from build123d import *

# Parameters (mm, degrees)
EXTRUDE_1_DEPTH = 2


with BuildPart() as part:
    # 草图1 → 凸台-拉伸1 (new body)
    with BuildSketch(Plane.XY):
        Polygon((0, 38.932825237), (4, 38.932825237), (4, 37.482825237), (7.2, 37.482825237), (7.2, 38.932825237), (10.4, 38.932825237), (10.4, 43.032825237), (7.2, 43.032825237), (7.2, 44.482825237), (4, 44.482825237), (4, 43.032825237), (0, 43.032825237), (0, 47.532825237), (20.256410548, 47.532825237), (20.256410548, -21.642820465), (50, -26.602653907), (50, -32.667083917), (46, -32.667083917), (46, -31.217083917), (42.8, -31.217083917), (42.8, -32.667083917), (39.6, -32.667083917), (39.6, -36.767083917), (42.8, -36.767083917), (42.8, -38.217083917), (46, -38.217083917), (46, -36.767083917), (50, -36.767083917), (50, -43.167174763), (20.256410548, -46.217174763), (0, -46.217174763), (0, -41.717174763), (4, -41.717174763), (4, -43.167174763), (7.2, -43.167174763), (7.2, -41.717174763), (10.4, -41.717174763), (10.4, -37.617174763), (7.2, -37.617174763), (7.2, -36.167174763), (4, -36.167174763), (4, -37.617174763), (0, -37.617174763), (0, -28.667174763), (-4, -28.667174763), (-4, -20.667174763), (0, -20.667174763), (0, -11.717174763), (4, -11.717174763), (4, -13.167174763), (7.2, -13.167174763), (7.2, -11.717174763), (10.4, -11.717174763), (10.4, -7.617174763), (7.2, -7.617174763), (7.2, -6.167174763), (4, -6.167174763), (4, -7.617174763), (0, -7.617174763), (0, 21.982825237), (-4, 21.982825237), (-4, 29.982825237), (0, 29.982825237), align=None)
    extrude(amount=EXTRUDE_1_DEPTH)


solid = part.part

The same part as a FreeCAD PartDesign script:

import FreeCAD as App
import Part
import Sketcher
from FreeCAD import Vector
Q = App.Units.Quantity

doc = App.newDocument("Part")
body = doc.addObject("PartDesign::Body", "Body")

# Sketch on XY plane
sketch1 = body.newObject("Sketcher::SketchObject", "Sketch")
sketch1.AttachmentSupport = (doc.getObject("XY_Plane"), [""])
sketch1.MapMode = "FlatFace"
sketch1.addGeometry([
    Part.LineSegment(Vector(4, 38.932825, 0), Vector(0, 38.932825, 0)),  # 0
    Part.LineSegment(Vector(0, 38.932825, 0), Vector(0, 29.982825, 0)),  # 1
    Part.LineSegment(Vector(0, 29.982825, 0), Vector(-4, 29.982825, 0)),  # 2
    Part.LineSegment(Vector(-4, 29.982825, 0), Vector(-4, 21.982825, 0)),  # 3
    Part.LineSegment(Vector(-4, 21.982825, 0), Vector(0, 21.982825, 0)),  # 4
    Part.LineSegment(Vector(0, 21.982825, 0), Vector(0, -7.617175, 0)),  # 5
    Part.LineSegment(Vector(0, -7.617175, 0), Vector(4, -7.617175, 0)),  # 6
    Part.LineSegment(Vector(4, -7.617175, 0), Vector(4, -6.167175, 0)),  # 7
    Part.LineSegment(Vector(4, -6.167175, 0), Vector(7.2, -6.167175, 0)),  # 8
    Part.LineSegment(Vector(7.2, -6.167175, 0), Vector(7.2, -7.617175, 0)),  # 9
    Part.LineSegment(Vector(7.2, -7.617175, 0), Vector(10.4, -7.617175, 0)),  # 10
    Part.LineSegment(Vector(10.4, -7.617175, 0), Vector(10.4, -11.717175, 0)),  # 11
    Part.LineSegment(Vector(10.4, -11.717175, 0), Vector(7.2, -11.717175, 0)),  # 12
    Part.LineSegment(Vector(7.2, -11.717175, 0), Vector(7.2, -13.167175, 0)),  # 13
    Part.LineSegment(Vector(7.2, -13.167175, 0), Vector(4, -13.167175, 0)),  # 14
    Part.LineSegment(Vector(4, -13.167175, 0), Vector(4, -11.717175, 0)),  # 15
    Part.LineSegment(Vector(4, -11.717175, 0), Vector(0, -11.717175, 0)),  # 16
    Part.LineSegment(Vector(0, -11.717175, 0), Vector(0, -20.667175, 0)),  # 17
    Part.LineSegment(Vector(0, -20.667175, 0), Vector(-4, -20.667175, 0)),  # 18
    Part.LineSegment(Vector(-4, -20.667175, 0), Vector(-4, -28.667175, 0)),  # 19
    Part.LineSegment(Vector(-4, -28.667175, 0), Vector(0, -28.667175, 0)),  # 20
    Part.LineSegment(Vector(0, -28.667175, 0), Vector(0, -37.617175, 0)),  # 21
    Part.LineSegment(Vector(0, -37.617175, 0), Vector(4, -37.617175, 0)),  # 22
    Part.LineSegment(Vector(4, -37.617175, 0), Vector(4, -36.167175, 0)),  # 23
    Part.LineSegment(Vector(4, -36.167175, 0), Vector(7.2, -36.167175, 0)),  # 24
    Part.LineSegment(Vector(7.2, -36.167175, 0), Vector(7.2, -37.617175, 0)),  # 25
    Part.LineSegment(Vector(7.2, -37.617175, 0), Vector(10.4, -37.617175, 0)),  # 26
    Part.LineSegment(Vector(10.4, -37.617175, 0), Vector(10.4, -41.717175, 0)),  # 27
    Part.LineSegment(Vector(10.4, -41.717175, 0), Vector(7.2, -41.717175, 0)),  # 28
    Part.LineSegment(Vector(7.2, -41.717175, 0), Vector(7.2, -43.167175, 0)),  # 29
    Part.LineSegment(Vector(7.2, -43.167175, 0), Vector(4, -43.167175, 0)),  # 30
    Part.LineSegment(Vector(4, -43.167175, 0), Vector(4, -41.717175, 0)),  # 31
    Part.LineSegment(Vector(4, -41.717175, 0), Vector(0, -41.717175, 0)),  # 32
    Part.LineSegment(Vector(0, -41.717175, 0), Vector(0, -46.217175, 0)),  # 33
    Part.LineSegment(Vector(0, -46.217175, 0), Vector(20.256411, -46.217175, 0)),  # 34
    Part.LineSegment(Vector(20.256411, -46.217175, 0), Vector(50, -43.167175, 0)),  # 35
    Part.LineSegment(Vector(50, -43.167175, 0), Vector(50, -36.767084, 0)),  # 36
    Part.LineSegment(Vector(50, -36.767084, 0), Vector(46, -36.767084, 0)),  # 37
    Part.LineSegment(Vector(46, -36.767084, 0), Vector(46, -38.217084, 0)),  # 38
    Part.LineSegment(Vector(46, -38.217084, 0), Vector(42.8, -38.217084, 0)),  # 39
    Part.LineSegment(Vector(42.8, -38.217084, 0), Vector(42.8, -36.767084, 0)),  # 40
    Part.LineSegment(Vector(42.8, -36.767084, 0), Vector(39.6, -36.767084, 0)),  # 41
    Part.LineSegment(Vector(39.6, -36.767084, 0), Vector(39.6, -32.667084, 0)),  # 42
    Part.LineSegment(Vector(39.6, -32.667084, 0), Vector(42.8, -32.667084, 0)),  # 43
    Part.LineSegment(Vector(42.8, -32.667084, 0), Vector(42.8, -31.217084, 0)),  # 44
    Part.LineSegment(Vector(42.8, -31.217084, 0), Vector(46, -31.217084, 0)),  # 45
    Part.LineSegment(Vector(46, -31.217084, 0), Vector(46, -32.667084, 0)),  # 46
    Part.LineSegment(Vector(46, -32.667084, 0), Vector(50, -32.667084, 0)),  # 47
    Part.LineSegment(Vector(50, -32.667084, 0), Vector(50, -26.602654, 0)),  # 48
    Part.LineSegment(Vector(50, -26.602654, 0), Vector(20.256411, -21.64282, 0)),  # 49
    Part.LineSegment(Vector(20.256411, -21.64282, 0), Vector(20.256411, 47.532825, 0)),  # 50
    Part.LineSegment(Vector(20.256411, 47.532825, 0), Vector(0, 47.532825, 0)),  # 51
    Part.LineSegment(Vector(0, 47.532825, 0), Vector(0, 43.032825, 0)),  # 52
    Part.LineSegment(Vector(0, 43.032825, 0), Vector(4, 43.032825, 0)),  # 53
    Part.LineSegment(Vector(4, 43.032825, 0), Vector(4, 44.482825, 0)),  # 54
    Part.LineSegment(Vector(4, 44.482825, 0), Vector(7.2, 44.482825, 0)),  # 55
    Part.LineSegment(Vector(7.2, 44.482825, 0), Vector(7.2, 43.032825, 0)),  # 56
    Part.LineSegment(Vector(7.2, 43.032825, 0), Vector(10.4, 43.032825, 0)),  # 57
    Part.LineSegment(Vector(10.4, 43.032825, 0), Vector(10.4, 38.932825, 0)),  # 58
    Part.LineSegment(Vector(10.4, 38.932825, 0), Vector(7.2, 38.932825, 0)),  # 59
    Part.LineSegment(Vector(7.2, 38.932825, 0), Vector(7.2, 37.482825, 0)),  # 60
    Part.LineSegment(Vector(7.2, 37.482825, 0), Vector(4, 37.482825, 0)),  # 61
    Part.LineSegment(Vector(4, 37.482825, 0), Vector(4, 38.932825, 0)),  # 62
], False)
sketch1.addConstraint([
    Sketcher.Constraint("Coincident", 0, 2, 1, 1),
    Sketcher.Constraint("Coincident", 1, 2, 2, 1),
    Sketcher.Constraint("Coincident", 2, 2, 3, 1),
    Sketcher.Constraint("Coincident", 3, 2, 4, 1),
    Sketcher.Constraint("Coincident", 4, 2, 5, 1),
    Sketcher.Constraint("Coincident", 5, 2, 6, 1),
    Sketcher.Constraint("Coincident", 6, 2, 7, 1),
    Sketcher.Constraint("Coincident", 7, 2, 8, 1),
    Sketcher.Constraint("Coincident", 8, 2, 9, 1),
    Sketcher.Constraint("Coincident", 9, 2, 10, 1),
    Sketcher.Constraint("Coincident", 10, 2, 11, 1),
    Sketcher.Constraint("Coincident", 11, 2, 12, 1),
    Sketcher.Constraint("Coincident", 12, 2, 13, 1),
    Sketcher.Constraint("Coincident", 13, 2, 14, 1),
    Sketcher.Constraint("Coincident", 14, 2, 15, 1),
    Sketcher.Constraint("Coincident", 15, 2, 16, 1),
    Sketcher.Constraint("Coincident", 16, 2, 17, 1),
    Sketcher.Constraint("Coincident", 17, 2, 18, 1),
    Sketcher.Constraint("Coincident", 18, 2, 19, 1),
    Sketcher.Constraint("Coincident", 19, 2, 20, 1),
    Sketcher.Constraint("Coincident", 20, 2, 21, 1),
    Sketcher.Constraint("Coincident", 21, 2, 22, 1),
    Sketcher.Constraint("Coincident", 22, 2, 23, 1),
    Sketcher.Constraint("Coincident", 23, 2, 24, 1),
    Sketcher.Constraint("Coincident", 24, 2, 25, 1),
    Sketcher.Constraint("Coincident", 25, 2, 26, 1),
    Sketcher.Constraint("Coincident", 26, 2, 27, 1),
    Sketcher.Constraint("Coincident", 27, 2, 28, 1),
    Sketcher.Constraint("Coincident", 28, 2, 29, 1),
    Sketcher.Constraint("Coincident", 29, 2, 30, 1),
    Sketcher.Constraint("Coincident", 30, 2, 31, 1),
    Sketcher.Constraint("Coincident", 31, 2, 32, 1),
    Sketcher.Constraint("Coincident", 32, 2, 33, 1),
    Sketcher.Constraint("Coincident", 33, 2, 34, 1),
    Sketcher.Constraint("Coincident", 34, 2, 35, 1),
    Sketcher.Constraint("Coincident", 35, 2, 36, 1),
    Sketcher.Constraint("Coincident", 36, 2, 37, 1),
    Sketcher.Constraint("Coincident", 37, 2, 38, 1),
    Sketcher.Constraint("Coincident", 38, 2, 39, 1),
    Sketcher.Constraint("Coincident", 39, 2, 40, 1),
    Sketcher.Constraint("Coincident", 40, 2, 41, 1),
    Sketcher.Constraint("Coincident", 41, 2, 42, 1),
    Sketcher.Constraint("Coincident", 42, 2, 43, 1),
    Sketcher.Constraint("Coincident", 43, 2, 44, 1),
    Sketcher.Constraint("Coincident", 44, 2, 45, 1),
    Sketcher.Constraint("Coincident", 45, 2, 46, 1),
    Sketcher.Constraint("Coincident", 46, 2, 47, 1),
    Sketcher.Constraint("Coincident", 47, 2, 48, 1),
    Sketcher.Constraint("Coincident", 48, 2, 49, 1),
    Sketcher.Constraint("Coincident", 49, 2, 50, 1),
    Sketcher.Constraint("Coincident", 50, 2, 51, 1),
    Sketcher.Constraint("Coincident", 51, 2, 52, 1),
    Sketcher.Constraint("Coincident", 52, 2, 53, 1),
    Sketcher.Constraint("Coincident", 53, 2, 54, 1),
    Sketcher.Constraint("Coincident", 54, 2, 55, 1),
    Sketcher.Constraint("Coincident", 55, 2, 56, 1),
    Sketcher.Constraint("Coincident", 56, 2, 57, 1),
    Sketcher.Constraint("Coincident", 57, 2, 58, 1),
    Sketcher.Constraint("Coincident", 58, 2, 59, 1),
    Sketcher.Constraint("Coincident", 59, 2, 60, 1),
    Sketcher.Constraint("Coincident", 60, 2, 61, 1),
    Sketcher.Constraint("Coincident", 61, 2, 62, 1),
    Sketcher.Constraint("Coincident", 62, 2, 0, 1),
    Sketcher.Constraint("Horizontal", 0),
    Sketcher.Constraint("Vertical", 1),
    Sketcher.Constraint("Horizontal", 2),
    Sketcher.Constraint("Vertical", 3),
    Sketcher.Constraint("Horizontal", 4),
    Sketcher.Constraint("Vertical", 5),
    Sketcher.Constraint("Horizontal", 6),
    Sketcher.Constraint("Vertical", 7),
    Sketcher.Constraint("Horizontal", 8),
    Sketcher.Constraint("Vertical", 9),
    Sketcher.Constraint("Horizontal", 10),
    Sketcher.Constraint("Vertical", 11),
    Sketcher.Constraint("Horizontal", 12),
    Sketcher.Constraint("Vertical", 13),
    Sketcher.Constraint("Horizontal", 14),
    Sketcher.Constraint("Vertical", 15),
    Sketcher.Constraint("Horizontal", 16),
    Sketcher.Constraint("Vertical", 17),
    Sketcher.Constraint("Horizontal", 18),
    Sketcher.Constraint("Vertical", 19),
    Sketcher.Constraint("Horizontal", 20),
    Sketcher.Constraint("Vertical", 21),
    Sketcher.Constraint("Horizontal", 22),
    Sketcher.Constraint("Vertical", 23),
    Sketcher.Constraint("Horizontal", 24),
    Sketcher.Constraint("Vertical", 25),
    Sketcher.Constraint("Horizontal", 26),
    Sketcher.Constraint("Vertical", 27),
    Sketcher.Constraint("Horizontal", 28),
    Sketcher.Constraint("Vertical", 29),
    Sketcher.Constraint("Horizontal", 30),
    Sketcher.Constraint("Vertical", 31),
    Sketcher.Constraint("Horizontal", 32),
    Sketcher.Constraint("Vertical", 33),
    Sketcher.Constraint("Horizontal", 34),
    Sketcher.Constraint("Vertical", 36),
    Sketcher.Constraint("Horizontal", 37),
    Sketcher.Constraint("Vertical", 38),
    Sketcher.Constraint("Horizontal", 39),
    Sketcher.Constraint("Vertical", 40),
    Sketcher.Constraint("Horizontal", 41),
    Sketcher.Constraint("Vertical", 42),
    Sketcher.Constraint("Horizontal", 43),
    Sketcher.Constraint("Vertical", 44),
    Sketcher.Constraint("Horizontal", 45),
    Sketcher.Constraint("Vertical", 46),
    Sketcher.Constraint("Horizontal", 47),
    Sketcher.Constraint("Vertical", 48),
    Sketcher.Constraint("Vertical", 50),
    Sketcher.Constraint("Horizontal", 51),
    Sketcher.Constraint("Vertical", 52),
    Sketcher.Constraint("Horizontal", 53),
    Sketcher.Constraint("Vertical", 54),
    Sketcher.Constraint("Horizontal", 55),
    Sketcher.Constraint("Vertical", 56),
    Sketcher.Constraint("Horizontal", 57),
    Sketcher.Constraint("Vertical", 58),
    Sketcher.Constraint("Horizontal", 59),
    Sketcher.Constraint("Vertical", 60),
    Sketcher.Constraint("Horizontal", 61),
    Sketcher.Constraint("Vertical", 62),
    Sketcher.Constraint("PointOnObject", 0, 2, -2),
    Sketcher.Constraint("PointOnObject", 4, 2, -2),
    Sketcher.Constraint("PointOnObject", 16, 2, -2),
    Sketcher.Constraint("PointOnObject", 20, 2, -2),
    Sketcher.Constraint("PointOnObject", 32, 2, -2),
    Sketcher.Constraint("PointOnObject", 51, 2, -2),
    Sketcher.Constraint("Horizontal", 6, 2, 9, 2),
    Sketcher.Constraint("Horizontal", 12, 2, 15, 2),
    Sketcher.Constraint("Horizontal", 22, 2, 25, 2),
    Sketcher.Constraint("Horizontal", 28, 2, 31, 2),
    Sketcher.Constraint("Horizontal", 30, 2, 35, 2),
    Sketcher.Constraint("Horizontal", 37, 2, 40, 2),
    Sketcher.Constraint("Horizontal", 43, 2, 46, 2),
    Sketcher.Constraint("Horizontal", 53, 2, 56, 2),
    Sketcher.Constraint("Horizontal", 0, 2, 58, 2),
    Sketcher.Constraint("Vertical", 9, 2, 12, 2),
    Sketcher.Constraint("Vertical", 7, 2, 14, 2),
    Sketcher.Constraint("Vertical", 3, 2, 18, 2),
    Sketcher.Constraint("Vertical", 15, 2, 22, 2),
    Sketcher.Constraint("Vertical", 13, 2, 24, 2),
    Sketcher.Constraint("Vertical", 11, 2, 26, 2),
    Sketcher.Constraint("Vertical", 25, 2, 28, 2),
    Sketcher.Constraint("Vertical", 23, 2, 30, 2),
    Sketcher.Constraint("Vertical", 40, 2, 43, 2),
    Sketcher.Constraint("Vertical", 38, 2, 45, 2),
    Sketcher.Constraint("Vertical", 36, 2, 47, 2),
    Sketcher.Constraint("Vertical", 34, 2, 49, 2),
    Sketcher.Constraint("Vertical", 31, 2, 53, 2),
    Sketcher.Constraint("Vertical", 29, 2, 55, 2),
    Sketcher.Constraint("Vertical", 27, 2, 57, 2),
    Sketcher.Constraint("Vertical", 56, 2, 59, 2),
    Sketcher.Constraint("Vertical", 54, 2, 61, 2),
    Sketcher.Constraint("Equal", 0, 2),
    Sketcher.Constraint("Equal", 8, 10),
    Sketcher.Constraint("Equal", 32, 37),
    Sketcher.Constraint("Equal", 30, 39),
    Sketcher.Constraint("Equal", 39, 41),
    Sketcher.Constraint("Equal", 9, 13),
    Sketcher.Constraint("Equal", 1, 17),
    Sketcher.Constraint("Equal", 3, 19),
    Sketcher.Constraint("Equal", 17, 21),
    Sketcher.Constraint("Equal", 15, 23),
    Sketcher.Constraint("Equal", 11, 27),
    Sketcher.Constraint("Equal", 25, 29),
    Sketcher.Constraint("Equal", 31, 38),
    Sketcher.Constraint("Equal", 27, 42),
    Sketcher.Constraint("Equal", 40, 44),
    Sketcher.Constraint("Equal", 33, 52),
    Sketcher.Constraint("Equal", 46, 54),
    Sketcher.Constraint("Equal", 42, 58),
    Sketcher.Constraint("Equal", 56, 60),
    Sketcher.Constraint("DistanceX", 0, 2, 0, 1, Q("4 mm")),
    Sketcher.Constraint("DistanceY", 3, 2, 3, 1, Q("8 mm")),
    Sketcher.Constraint("DistanceX", 8, 1, 8, 2, Q("3.2 mm")),
    Sketcher.Constraint("DistanceY", 5, 2, 5, 1, Q("29.6 mm")),
    Sketcher.Constraint("DistanceY", 11, 2, 11, 1, Q("4.1 mm")),
    Sketcher.Constraint("DistanceY", 33, 2, 33, 1, Q("4.5 mm")),
    Sketcher.Constraint("DistanceX", -1, 1, 35, 2, Q("50 mm")),
    Sketcher.Constraint("DistanceY", 1, 2, 1, 1, Q("8.95 mm")),
    Sketcher.Constraint("DistanceY", 7, 1, 7, 2, Q("1.45 mm")),
    Sketcher.Constraint("DistanceX", 34, 1, 34, 2, Q("20.256411 mm")),
    Sketcher.Constraint("DistanceY", 36, 1, 36, 2, Q("6.400091 mm")),
    Sketcher.Constraint("DistanceY", 48, 1, 48, 2, Q("6.06443 mm")),
    Sketcher.Constraint("DistanceY", 50, 1, 50, 2, Q("69.175646 mm")),
    Sketcher.Constraint("DistanceY", 49, 2, -1, 1, Q("21.64282 mm")),
])
pad1 = body.newObject("PartDesign::Pad", "Pad")
pad1.Profile = sketch1
pad1.Length = 2

doc.recompute()
